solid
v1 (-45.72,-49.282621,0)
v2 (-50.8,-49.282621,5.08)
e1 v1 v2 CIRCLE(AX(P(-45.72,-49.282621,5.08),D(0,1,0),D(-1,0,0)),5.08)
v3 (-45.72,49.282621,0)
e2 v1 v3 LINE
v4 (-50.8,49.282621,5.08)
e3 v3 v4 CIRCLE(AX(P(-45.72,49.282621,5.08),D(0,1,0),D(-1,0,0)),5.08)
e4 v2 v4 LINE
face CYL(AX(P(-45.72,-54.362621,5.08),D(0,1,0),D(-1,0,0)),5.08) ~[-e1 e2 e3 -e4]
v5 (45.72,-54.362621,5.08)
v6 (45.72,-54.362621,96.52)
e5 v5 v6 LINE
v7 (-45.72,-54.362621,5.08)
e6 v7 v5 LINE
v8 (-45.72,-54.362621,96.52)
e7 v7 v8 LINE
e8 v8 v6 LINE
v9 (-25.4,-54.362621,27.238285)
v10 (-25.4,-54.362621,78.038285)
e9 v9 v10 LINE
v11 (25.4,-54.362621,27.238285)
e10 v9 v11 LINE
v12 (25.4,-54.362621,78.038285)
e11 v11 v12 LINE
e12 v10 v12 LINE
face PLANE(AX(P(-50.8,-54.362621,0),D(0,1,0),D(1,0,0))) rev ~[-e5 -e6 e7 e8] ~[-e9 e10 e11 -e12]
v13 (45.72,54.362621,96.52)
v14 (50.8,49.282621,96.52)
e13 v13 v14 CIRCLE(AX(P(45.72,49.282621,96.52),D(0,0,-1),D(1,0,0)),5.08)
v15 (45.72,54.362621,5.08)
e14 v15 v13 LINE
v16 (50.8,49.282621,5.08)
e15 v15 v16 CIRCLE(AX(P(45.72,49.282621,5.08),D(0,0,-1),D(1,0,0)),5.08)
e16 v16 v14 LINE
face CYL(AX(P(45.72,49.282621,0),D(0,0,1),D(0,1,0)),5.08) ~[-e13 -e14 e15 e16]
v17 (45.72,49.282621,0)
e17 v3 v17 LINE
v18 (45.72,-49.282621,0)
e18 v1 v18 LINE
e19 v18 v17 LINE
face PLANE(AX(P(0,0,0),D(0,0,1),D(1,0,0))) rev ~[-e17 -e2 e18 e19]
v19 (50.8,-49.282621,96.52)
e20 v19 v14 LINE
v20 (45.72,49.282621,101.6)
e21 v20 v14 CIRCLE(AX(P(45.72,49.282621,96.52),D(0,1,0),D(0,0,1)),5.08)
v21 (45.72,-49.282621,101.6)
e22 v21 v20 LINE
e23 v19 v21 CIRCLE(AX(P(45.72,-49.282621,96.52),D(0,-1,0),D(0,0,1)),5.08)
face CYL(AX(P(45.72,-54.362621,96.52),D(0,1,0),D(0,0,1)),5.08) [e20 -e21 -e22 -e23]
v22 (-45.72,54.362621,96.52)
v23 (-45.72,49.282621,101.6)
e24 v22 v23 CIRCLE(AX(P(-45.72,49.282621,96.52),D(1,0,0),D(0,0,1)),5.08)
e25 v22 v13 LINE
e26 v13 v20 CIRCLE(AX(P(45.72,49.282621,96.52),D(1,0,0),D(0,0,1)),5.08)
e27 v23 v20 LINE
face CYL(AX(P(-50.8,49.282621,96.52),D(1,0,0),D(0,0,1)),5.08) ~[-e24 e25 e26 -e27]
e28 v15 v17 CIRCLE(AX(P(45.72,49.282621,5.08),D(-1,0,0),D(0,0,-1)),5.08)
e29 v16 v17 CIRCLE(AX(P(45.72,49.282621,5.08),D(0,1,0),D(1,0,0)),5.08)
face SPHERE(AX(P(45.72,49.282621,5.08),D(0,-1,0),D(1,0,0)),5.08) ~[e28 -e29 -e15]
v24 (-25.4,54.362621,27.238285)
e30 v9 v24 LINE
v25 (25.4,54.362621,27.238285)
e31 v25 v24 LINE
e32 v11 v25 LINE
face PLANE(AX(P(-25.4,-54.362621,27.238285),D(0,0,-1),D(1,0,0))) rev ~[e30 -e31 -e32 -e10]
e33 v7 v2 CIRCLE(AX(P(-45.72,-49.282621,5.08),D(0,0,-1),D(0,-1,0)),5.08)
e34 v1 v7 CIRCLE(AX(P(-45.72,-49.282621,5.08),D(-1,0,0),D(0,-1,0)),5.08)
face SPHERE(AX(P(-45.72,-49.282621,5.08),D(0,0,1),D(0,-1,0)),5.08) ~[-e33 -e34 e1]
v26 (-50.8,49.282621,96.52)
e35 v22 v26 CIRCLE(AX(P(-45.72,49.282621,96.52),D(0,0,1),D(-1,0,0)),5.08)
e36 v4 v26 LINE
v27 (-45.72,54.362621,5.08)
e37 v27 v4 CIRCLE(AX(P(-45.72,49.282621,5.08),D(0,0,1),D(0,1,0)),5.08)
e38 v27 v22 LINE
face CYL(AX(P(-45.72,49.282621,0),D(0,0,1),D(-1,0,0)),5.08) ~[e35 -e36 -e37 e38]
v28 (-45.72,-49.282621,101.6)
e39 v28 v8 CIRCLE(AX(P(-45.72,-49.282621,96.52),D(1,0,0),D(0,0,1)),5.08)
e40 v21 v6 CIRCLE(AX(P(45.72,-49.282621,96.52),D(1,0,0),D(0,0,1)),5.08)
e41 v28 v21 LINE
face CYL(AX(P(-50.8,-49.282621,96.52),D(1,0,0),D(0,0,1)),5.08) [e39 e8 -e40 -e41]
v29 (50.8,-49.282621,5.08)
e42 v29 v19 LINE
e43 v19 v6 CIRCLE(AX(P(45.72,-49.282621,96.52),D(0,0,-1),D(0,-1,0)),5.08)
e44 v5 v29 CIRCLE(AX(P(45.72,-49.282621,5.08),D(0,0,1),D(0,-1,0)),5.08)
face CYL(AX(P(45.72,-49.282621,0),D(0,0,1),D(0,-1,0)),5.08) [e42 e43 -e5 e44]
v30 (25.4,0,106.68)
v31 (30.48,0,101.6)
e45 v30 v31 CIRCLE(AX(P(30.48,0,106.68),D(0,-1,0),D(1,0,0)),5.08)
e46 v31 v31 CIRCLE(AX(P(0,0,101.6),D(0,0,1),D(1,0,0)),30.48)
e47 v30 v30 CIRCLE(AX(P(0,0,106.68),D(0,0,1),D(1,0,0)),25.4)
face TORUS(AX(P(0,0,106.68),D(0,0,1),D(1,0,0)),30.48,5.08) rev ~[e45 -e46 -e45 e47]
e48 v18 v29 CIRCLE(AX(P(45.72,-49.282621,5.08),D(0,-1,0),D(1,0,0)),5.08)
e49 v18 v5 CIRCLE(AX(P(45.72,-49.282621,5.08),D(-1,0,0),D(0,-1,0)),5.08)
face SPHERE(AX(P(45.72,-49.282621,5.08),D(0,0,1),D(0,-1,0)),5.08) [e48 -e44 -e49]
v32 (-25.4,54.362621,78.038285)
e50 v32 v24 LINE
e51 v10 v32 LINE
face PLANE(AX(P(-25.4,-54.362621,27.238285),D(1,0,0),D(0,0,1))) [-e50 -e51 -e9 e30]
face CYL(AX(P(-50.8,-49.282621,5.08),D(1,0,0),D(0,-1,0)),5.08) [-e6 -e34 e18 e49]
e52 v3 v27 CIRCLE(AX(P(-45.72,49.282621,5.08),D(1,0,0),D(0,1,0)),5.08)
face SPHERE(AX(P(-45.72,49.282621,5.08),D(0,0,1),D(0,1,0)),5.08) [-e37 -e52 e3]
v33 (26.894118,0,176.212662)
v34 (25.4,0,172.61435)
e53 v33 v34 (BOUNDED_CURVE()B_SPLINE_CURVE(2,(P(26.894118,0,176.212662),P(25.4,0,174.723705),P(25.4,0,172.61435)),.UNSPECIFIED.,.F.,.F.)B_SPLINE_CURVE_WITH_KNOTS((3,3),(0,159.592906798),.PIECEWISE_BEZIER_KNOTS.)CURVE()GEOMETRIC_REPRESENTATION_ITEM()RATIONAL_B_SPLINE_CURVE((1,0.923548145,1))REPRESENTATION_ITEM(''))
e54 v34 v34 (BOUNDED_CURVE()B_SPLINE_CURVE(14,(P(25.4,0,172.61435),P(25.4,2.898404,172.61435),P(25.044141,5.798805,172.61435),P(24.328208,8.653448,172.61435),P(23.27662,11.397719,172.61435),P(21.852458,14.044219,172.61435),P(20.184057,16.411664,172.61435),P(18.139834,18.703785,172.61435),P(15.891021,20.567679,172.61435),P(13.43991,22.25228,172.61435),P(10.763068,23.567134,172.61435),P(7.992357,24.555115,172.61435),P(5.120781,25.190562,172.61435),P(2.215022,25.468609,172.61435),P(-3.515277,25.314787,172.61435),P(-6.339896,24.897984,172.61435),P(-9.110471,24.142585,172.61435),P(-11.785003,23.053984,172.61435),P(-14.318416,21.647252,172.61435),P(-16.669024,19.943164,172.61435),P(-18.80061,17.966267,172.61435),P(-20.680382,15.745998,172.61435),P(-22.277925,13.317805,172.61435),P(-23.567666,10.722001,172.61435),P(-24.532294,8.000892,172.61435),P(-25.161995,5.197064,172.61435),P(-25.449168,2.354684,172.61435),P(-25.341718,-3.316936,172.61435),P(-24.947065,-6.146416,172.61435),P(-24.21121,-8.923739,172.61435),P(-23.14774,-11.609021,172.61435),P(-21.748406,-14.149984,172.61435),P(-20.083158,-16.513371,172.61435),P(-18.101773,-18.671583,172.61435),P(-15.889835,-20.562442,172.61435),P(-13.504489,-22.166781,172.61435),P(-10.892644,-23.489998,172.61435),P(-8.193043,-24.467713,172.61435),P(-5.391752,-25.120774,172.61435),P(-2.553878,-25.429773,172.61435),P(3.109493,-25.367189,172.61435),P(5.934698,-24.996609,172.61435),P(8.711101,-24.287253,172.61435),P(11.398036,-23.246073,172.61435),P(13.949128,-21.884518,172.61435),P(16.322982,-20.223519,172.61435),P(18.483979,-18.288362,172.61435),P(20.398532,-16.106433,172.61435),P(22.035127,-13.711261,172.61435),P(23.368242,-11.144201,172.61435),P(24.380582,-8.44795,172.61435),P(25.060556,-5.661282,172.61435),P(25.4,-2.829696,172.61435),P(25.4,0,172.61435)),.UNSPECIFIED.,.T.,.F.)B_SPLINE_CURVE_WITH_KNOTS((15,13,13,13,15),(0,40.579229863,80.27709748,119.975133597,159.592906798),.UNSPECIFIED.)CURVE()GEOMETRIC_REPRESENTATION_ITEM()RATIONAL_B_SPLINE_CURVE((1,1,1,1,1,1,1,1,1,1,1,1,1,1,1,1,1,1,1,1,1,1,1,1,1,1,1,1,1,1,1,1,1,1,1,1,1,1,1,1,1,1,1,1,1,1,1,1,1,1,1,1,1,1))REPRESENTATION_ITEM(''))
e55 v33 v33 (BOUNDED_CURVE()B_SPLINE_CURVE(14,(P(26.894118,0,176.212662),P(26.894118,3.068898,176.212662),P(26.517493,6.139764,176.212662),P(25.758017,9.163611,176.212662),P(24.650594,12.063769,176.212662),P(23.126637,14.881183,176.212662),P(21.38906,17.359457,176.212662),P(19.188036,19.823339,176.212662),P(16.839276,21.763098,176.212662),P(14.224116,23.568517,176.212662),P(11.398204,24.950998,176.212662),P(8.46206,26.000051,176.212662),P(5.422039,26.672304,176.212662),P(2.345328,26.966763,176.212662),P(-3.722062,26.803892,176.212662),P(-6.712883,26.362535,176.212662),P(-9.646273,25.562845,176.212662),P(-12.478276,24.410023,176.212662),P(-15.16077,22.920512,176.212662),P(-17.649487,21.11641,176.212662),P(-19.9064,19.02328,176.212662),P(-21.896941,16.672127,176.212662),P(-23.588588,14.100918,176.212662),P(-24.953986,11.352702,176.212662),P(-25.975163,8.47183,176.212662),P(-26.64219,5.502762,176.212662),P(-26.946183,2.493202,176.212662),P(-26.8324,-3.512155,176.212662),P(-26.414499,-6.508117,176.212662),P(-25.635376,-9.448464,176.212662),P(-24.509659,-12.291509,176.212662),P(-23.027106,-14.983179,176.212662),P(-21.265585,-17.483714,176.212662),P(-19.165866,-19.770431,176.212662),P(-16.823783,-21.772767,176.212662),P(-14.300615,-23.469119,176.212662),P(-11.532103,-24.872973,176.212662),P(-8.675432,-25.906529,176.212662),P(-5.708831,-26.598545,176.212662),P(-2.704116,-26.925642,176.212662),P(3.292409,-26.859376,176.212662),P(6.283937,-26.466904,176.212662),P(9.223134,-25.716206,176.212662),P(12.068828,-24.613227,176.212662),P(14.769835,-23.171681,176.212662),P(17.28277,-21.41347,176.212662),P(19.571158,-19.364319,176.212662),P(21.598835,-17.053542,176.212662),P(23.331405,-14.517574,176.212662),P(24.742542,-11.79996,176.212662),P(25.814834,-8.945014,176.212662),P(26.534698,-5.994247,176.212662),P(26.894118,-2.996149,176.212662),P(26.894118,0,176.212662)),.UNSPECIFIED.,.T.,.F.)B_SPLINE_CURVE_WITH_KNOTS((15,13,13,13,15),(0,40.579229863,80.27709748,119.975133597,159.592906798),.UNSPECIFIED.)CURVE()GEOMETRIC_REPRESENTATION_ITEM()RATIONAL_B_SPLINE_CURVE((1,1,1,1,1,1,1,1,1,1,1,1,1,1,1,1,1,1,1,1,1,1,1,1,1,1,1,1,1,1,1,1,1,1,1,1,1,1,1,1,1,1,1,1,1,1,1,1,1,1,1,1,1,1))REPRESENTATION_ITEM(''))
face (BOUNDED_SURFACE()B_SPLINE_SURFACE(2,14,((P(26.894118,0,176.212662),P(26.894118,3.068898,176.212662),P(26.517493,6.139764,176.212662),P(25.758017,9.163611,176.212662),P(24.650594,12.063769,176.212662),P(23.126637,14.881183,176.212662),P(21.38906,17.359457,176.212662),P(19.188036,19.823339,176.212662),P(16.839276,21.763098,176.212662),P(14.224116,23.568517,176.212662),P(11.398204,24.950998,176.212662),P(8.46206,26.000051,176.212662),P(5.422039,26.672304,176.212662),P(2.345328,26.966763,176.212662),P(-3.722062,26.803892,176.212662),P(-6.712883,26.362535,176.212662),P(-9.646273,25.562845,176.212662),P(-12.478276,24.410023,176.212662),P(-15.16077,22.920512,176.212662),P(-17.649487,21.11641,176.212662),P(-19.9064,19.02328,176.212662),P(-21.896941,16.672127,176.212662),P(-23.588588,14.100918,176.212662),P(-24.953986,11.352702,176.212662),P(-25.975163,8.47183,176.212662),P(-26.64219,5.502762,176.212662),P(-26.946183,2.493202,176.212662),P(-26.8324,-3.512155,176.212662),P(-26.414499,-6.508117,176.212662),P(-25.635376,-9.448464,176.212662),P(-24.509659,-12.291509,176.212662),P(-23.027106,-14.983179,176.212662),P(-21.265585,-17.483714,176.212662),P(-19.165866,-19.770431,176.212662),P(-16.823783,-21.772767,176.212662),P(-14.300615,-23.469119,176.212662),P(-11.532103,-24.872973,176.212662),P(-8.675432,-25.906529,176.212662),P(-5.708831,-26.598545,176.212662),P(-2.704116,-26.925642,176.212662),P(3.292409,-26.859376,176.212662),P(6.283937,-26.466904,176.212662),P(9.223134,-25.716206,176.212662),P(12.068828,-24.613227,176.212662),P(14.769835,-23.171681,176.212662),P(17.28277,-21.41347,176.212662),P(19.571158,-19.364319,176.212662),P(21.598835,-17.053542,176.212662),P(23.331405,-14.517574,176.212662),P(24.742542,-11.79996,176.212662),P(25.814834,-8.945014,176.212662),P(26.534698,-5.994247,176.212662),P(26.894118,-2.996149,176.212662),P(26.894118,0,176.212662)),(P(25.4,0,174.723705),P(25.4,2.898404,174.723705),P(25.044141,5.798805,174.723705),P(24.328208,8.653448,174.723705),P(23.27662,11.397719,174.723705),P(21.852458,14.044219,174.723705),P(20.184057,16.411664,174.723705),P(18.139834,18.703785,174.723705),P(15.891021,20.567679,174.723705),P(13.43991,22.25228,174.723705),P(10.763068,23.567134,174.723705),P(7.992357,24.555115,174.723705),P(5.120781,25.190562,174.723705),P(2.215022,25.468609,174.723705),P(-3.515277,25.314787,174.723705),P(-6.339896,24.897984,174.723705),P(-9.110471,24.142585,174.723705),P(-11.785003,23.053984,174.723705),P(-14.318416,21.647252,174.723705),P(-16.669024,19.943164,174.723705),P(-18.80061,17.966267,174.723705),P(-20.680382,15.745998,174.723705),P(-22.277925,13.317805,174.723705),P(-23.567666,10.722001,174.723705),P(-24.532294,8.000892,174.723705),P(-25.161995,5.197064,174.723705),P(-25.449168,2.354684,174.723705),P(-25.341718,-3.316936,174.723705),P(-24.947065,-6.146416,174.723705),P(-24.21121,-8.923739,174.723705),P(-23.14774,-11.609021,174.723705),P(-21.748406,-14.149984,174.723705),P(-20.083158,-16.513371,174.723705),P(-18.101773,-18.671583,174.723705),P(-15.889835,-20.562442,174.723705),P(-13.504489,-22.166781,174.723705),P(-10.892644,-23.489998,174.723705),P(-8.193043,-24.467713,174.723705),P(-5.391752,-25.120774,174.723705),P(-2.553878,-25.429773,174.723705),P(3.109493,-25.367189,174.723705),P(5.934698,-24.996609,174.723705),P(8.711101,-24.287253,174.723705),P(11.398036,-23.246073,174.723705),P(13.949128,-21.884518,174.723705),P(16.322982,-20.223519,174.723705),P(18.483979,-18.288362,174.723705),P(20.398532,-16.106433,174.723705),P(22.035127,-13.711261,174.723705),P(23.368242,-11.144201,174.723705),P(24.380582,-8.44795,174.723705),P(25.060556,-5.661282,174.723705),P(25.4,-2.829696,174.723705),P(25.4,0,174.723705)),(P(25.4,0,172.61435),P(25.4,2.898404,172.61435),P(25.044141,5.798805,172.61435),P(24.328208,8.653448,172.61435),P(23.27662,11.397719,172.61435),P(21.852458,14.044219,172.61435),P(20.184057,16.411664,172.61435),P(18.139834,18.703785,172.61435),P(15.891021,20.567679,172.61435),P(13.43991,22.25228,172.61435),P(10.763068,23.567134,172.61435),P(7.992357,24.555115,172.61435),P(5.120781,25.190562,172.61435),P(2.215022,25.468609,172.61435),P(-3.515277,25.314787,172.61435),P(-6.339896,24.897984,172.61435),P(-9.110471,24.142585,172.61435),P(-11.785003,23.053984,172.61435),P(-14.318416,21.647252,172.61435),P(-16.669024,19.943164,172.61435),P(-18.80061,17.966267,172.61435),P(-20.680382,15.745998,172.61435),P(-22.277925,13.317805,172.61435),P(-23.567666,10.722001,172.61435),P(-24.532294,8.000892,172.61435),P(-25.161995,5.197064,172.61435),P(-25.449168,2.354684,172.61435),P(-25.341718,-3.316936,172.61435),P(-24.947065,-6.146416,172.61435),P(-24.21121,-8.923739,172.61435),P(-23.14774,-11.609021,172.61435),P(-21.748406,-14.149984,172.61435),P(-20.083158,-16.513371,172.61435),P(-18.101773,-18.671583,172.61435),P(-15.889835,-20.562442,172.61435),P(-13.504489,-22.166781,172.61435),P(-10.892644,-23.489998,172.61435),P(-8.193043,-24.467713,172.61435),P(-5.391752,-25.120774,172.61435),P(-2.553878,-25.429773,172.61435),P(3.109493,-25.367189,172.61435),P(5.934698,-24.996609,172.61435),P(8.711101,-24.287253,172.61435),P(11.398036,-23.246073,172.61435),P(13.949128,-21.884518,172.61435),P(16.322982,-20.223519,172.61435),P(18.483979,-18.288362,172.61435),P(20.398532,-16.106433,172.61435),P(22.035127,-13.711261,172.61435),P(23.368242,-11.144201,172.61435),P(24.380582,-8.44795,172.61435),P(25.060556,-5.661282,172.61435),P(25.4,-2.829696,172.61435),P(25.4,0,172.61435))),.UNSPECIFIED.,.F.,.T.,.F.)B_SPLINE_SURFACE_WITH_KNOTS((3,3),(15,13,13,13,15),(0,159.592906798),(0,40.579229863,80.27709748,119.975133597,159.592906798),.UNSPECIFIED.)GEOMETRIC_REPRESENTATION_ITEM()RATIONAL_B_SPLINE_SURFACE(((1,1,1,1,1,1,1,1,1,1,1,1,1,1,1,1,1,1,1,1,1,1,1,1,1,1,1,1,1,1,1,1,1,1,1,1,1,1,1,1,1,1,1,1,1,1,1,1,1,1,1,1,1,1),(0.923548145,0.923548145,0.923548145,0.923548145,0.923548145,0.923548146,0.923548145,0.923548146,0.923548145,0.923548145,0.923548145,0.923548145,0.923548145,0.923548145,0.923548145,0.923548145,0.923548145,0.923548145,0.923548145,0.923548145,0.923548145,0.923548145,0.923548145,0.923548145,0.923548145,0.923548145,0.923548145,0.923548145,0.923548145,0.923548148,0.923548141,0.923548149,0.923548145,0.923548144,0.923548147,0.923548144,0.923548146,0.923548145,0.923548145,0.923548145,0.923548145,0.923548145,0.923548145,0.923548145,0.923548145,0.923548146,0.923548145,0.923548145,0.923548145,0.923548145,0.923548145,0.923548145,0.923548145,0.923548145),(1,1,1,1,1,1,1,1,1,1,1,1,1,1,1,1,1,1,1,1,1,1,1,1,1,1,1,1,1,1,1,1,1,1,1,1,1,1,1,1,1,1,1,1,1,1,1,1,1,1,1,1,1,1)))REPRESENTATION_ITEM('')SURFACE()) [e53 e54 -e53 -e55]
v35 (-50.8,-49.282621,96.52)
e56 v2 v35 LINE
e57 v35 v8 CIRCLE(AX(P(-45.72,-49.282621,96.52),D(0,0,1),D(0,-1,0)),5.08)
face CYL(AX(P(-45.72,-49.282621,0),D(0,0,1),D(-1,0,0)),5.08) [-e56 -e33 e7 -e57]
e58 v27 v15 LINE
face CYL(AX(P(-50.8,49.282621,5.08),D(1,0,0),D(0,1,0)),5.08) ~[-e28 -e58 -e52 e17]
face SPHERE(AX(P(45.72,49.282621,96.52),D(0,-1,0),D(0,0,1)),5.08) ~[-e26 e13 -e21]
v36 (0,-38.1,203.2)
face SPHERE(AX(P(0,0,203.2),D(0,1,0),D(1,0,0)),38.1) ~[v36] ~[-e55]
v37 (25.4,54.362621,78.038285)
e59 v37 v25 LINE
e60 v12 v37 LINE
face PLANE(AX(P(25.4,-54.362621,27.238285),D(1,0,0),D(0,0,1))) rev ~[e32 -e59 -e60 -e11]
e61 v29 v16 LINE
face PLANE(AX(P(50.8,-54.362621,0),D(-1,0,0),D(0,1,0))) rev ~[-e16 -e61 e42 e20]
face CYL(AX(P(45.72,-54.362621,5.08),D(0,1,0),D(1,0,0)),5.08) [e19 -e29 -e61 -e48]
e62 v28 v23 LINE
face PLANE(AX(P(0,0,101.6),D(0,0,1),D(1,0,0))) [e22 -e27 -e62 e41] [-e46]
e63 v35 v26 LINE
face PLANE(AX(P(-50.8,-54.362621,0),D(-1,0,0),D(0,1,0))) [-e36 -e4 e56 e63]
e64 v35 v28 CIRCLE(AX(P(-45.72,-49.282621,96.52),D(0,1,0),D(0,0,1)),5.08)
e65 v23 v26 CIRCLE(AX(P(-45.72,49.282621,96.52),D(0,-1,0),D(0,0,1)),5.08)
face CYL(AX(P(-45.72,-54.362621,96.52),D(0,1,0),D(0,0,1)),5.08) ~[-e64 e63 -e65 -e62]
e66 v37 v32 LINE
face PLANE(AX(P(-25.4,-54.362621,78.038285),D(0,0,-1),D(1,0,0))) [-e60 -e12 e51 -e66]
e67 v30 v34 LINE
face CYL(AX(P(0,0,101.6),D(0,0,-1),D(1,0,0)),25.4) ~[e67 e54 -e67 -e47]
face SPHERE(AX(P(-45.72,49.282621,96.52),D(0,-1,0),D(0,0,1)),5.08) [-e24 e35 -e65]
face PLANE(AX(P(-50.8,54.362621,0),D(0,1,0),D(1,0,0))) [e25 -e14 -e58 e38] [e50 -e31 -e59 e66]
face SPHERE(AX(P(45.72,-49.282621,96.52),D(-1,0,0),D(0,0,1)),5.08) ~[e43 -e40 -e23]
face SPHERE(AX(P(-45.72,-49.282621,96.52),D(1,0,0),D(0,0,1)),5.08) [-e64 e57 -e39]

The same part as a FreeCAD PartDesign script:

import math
import FreeCAD as App
import Part
import Sketcher

V = App.Vector
Q = App.Units.Quantity


def edges_at(feature, points):
    """Names of the edges that pass closest to the given points."""
    edges = feature.Shape.Edges
    near = lambda p: min(range(len(edges)), key=lambda i: edges[i].distToShape(Part.Vertex(*p))[0])
    return sorted({f"Edge{near(p) + 1}" for p in points})


def add_polygon(sketch, points):
    """Adds a closed chain of lines whose ends are joined by coincident constraints."""
    first, n = sketch.GeometryCount, len(points)
    for a, b in zip(points, points[1:] + points[:1]):
        sketch.addGeometry(Part.LineSegment(App.Vector(*a, 0), App.Vector(*b, 0)), False)
    for i in range(n):
        sketch.addConstraint(Sketcher.Constraint("Coincident", first + i, 2, first + (i + 1) % n, 1))

doc = App.newDocument("Part")
params = doc.addObject("Spreadsheet::Sheet", "Params")
for row, (alias, value) in enumerate([
    ("sketch1_width", "4 in"),
    ("pad1_length", "4 in"),
    ("sketch2_diameter", "2 in"),
    ("pad2_length", "4 in"),
    ("sketch3_radius", "1.5 in"),
    ("revolution_angle", "360 deg"),
    ("sketch4_width", "2 in"),
    ("pocket1_length", "5 in"),
    ("fillet_radius", "0.2 in"),
], start=1):
    params.set(f"A{row}", alias)
    params.set(f"B{row}", "=" + value)
    params.setAlias(f"B{row}", alias)

body = doc.addObject("PartDesign::Body", "Body")

# Sketch on XY plane
sketch1 = body.newObject("Sketcher::SketchObject", "Sketch")
sketch1.AttachmentSupport = (doc.getObject("XY_Plane"), [""])
sketch1.MapMode = "FlatFace"
add_polygon(sketch1, [(-51, 54), (-51, -54), (51, -54), (51, 54)])  # lines 0-3
sketch1.addConstraint(Sketcher.Constraint("Vertical", 0))
sketch1.addConstraint(Sketcher.Constraint("Horizontal", 1))
sketch1.addConstraint(Sketcher.Constraint("Vertical", 2))
sketch1.addConstraint(Sketcher.Constraint("Horizontal", 3))
sketch1.addConstraint(Sketcher.Constraint("Symmetric", 0, 2, 2, 2, -1, 1))
sketch1.addConstraint(Sketcher.Constraint("DistanceX", 1, 1, 1, 2, Q("4 in")))
sketch1.addConstraint(Sketcher.Constraint("DistanceY", 0, 2, 0, 1, 108.725242))
sketch1.setExpression("Constraints[9]", "Params.sketch1_width")
pad1 = body.newObject("PartDesign::Pad", "Pad")
pad1.Profile = sketch1
pad1.setExpression("Length", "Params.pad1_length")

# Sketch on XY plane
sketch2 = body.newObject("Sketcher::SketchObject", "Sketch001")
sketch2.AttachmentSupport = (doc.getObject("XY_Plane"), [""])
sketch2.MapMode = "FlatFace"
sketch2.AttachmentOffset = App.Placement(V(0, 0, 4 * 25.4), App.Rotation())
sketch2.addGeometry(Part.Circle(V(0, 0, 0), V(0, 0, 1), 25), False)
sketch2.addConstraint(Sketcher.Constraint("Coincident", 0, 3, -1, 1))
sketch2.addConstraint(Sketcher.Constraint("Diameter", 0, Q("2 in")))
sketch2.setExpression("Constraints[1]", "Params.sketch2_diameter")
pad2 = body.newObject("PartDesign::Pad", "Pad001")
pad2.Profile = sketch2
pad2.setExpression("Length", "Params.pad2_length")

# Sketch on XY plane
sketch3 = body.newObject("Sketcher::SketchObject", "Sketch002")
sketch3.AttachmentSupport = (doc.getObject("XY_Plane"), [""])
sketch3.MapMode = "FlatFace"
sketch3.AttachmentOffset = App.Placement(V(0, 0, 8 * 25.4), App.Rotation())
sketch3.addGeometry(Part.ArcOfCircle(Part.Circle(V(0, 0, 0), V(0, 0, 1), 38), math.radians(-90), math.radians(90)), False)
sketch3.addGeometry(Part.LineSegment(V(0, 38, 0), V(0, -38, 0)), False)
sketch3.addConstraint(Sketcher.Constraint("Coincident", 0, 1, 1, 2))
sketch3.addConstraint(Sketcher.Constraint("Coincident", 1, 1, 0, 2))
sketch3.addConstraint(Sketcher.Constraint("Vertical", 1))
sketch3.addConstraint(Sketcher.Constraint("Coincident", 0, 3, -1, 1))
sketch3.addConstraint(Sketcher.Constraint("PointOnObject", 0, 1, -2))
sketch3.addConstraint(Sketcher.Constraint("Radius", 0, Q("1.5 in")))
sketch3.setExpression("Constraints[5]", "Params.sketch3_radius")
revolution = body.newObject("PartDesign::Revolution", "Revolution")
revolution.Profile = sketch3
revolution.ReferenceAxis = (sketch3, ["V_Axis"])
revolution.setExpression("Angle", "Params.revolution_angle")

# Sketch on XZ plane
sketch4 = body.newObject("Sketcher::SketchObject", "Sketch003")
sketch4.AttachmentSupport = (doc.getObject("XZ_Plane"), [""])
sketch4.MapMode = "FlatFace"
sketch4.AttachmentOffset = App.Placement(V(0, 0, 54.362621), App.Rotation())
add_polygon(sketch4, [(-25, 78), (-25, 27), (25, 27), (25, 78)])  # lines 0-3
sketch4.addConstraint(Sketcher.Constraint("Vertical", 0))
sketch4.addConstraint(Sketcher.Constraint("Horizontal", 1))
sketch4.addConstraint(Sketcher.Constraint("Vertical", 2))
sketch4.addConstraint(Sketcher.Constraint("Horizontal", 3))
sketch4.addConstraint(Sketcher.Constraint("Equal", 3, 0))
sketch4.addConstraint(Sketcher.Constraint("DistanceX", 1, 1, 1, 2, Q("2 in")))
sketch4.addConstraint(Sketcher.Constraint("DistanceX", 0, 2, -1, 1, Q("1 in")))
sketch4.addConstraint(Sketcher.Constraint("DistanceY", -1, 1, 0, 2, 27.238285))
sketch4.setExpression("Constraints[9]", "Params.sketch4_width")
pocket1 = body.newObject("PartDesign::Pocket", "Pocket")
pocket1.Profile = sketch4
pocket1.setExpression("Length", "Params.pocket1_length")
doc.recompute()

fillet = body.newObject("PartDesign::Fillet", "Fillet")
fillet.Base = (pocket1, edges_at(pocket1, [
    (0, -54.363, 101.6),
    (50.8, 0, 101.6),
    (50.8, -54.363, 50.8),
    (-50.8, 0, 101.6),
    (0, 54.363, 101.6),
    (-50.8, -54.363, 50.8),
    (0, -54.363, 0),
    (50.8, 0, 0),
    (50.8, 54.363, 50.8),
    (-50.8, 54.363, 50.8),
    (0, 54.363, 0),
    (-50.8, 0, 0),
    (-25.4, 0, 101.6),
    (-25.4, 0, 174.802),
]))
fillet.setExpression("Radius", "Params.fillet_radius")

doc.recompute()
